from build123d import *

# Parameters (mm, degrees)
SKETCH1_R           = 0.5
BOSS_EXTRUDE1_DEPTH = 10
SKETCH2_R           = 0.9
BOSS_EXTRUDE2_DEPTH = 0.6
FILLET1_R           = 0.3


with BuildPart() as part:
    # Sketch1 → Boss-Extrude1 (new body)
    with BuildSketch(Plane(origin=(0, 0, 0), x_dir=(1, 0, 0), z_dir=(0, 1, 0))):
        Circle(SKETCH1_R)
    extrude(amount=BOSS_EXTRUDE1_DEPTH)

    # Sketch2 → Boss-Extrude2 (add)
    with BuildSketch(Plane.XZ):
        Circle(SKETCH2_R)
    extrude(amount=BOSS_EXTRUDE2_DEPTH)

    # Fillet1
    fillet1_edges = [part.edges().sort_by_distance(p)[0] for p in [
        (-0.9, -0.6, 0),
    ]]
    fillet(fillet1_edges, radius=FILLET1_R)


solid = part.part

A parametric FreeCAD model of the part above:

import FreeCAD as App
import Part
import Sketcher
from FreeCAD import Vector


def edges_at(feature, points):
    """Names of the edges that pass closest to the given points."""
    edges = feature.Shape.Edges
    near = lambda p: min(range(len(edges)), key=lambda i: edges[i].distToShape(Part.Vertex(*p))[0])
    return sorted({f"Edge{near(p) + 1}" for p in points})

doc = App.newDocument("Part")
params = doc.addObject("Spreadsheet::Sheet", "Params")
for row, (alias, value) in enumerate([
    ("sketch1_diameter", "1 mm"),
    ("pad1_length", "10 mm"),
    ("sketch2_diameter", "1.8 mm"),
    ("pad2_length", "0.6 mm"),
    ("fillet_radius", "0.3 mm"),
], start=1):
    params.set(f"A{row}", alias)
    params.set(f"B{row}", "=" + value)
    params.setAlias(f"B{row}", alias)

body = doc.addObject("PartDesign::Body", "Body")

sketch1 = doc.addObject("Sketcher::SketchObject", "Sketch")
body.addObject(sketch1)
sketch1.AttachmentSupport = (doc.XZ_Plane, [""])
sketch1.MapMode = "FlatFace"
sketch1.addGeometry(Part.Circle(Vector(0, 0, 0), Vector(0, 0, 1), 0.5), False)
sketch1.addConstraint([
    Sketcher.Constraint("Coincident", 0, 3, -1, 1),
    Sketcher.Constraint("Diameter", 0, 1.0),
])
sketch1.setExpression("Constraints[1]", "Params.sketch1_diameter")
pad1 = doc.addObject("PartDesign::Pad", "Pad")
body.addObject(pad1)
pad1.Profile = sketch1
pad1.setExpression("Length", "Params.pad1_length")
pad1.Reversed = True

sketch2 = doc.addObject("Sketcher::SketchObject", "Sketch001")
body.addObject(sketch2)
sketch2.AttachmentSupport = (doc.XZ_Plane, [""])
sketch2.MapMode = "FlatFace"
sketch2.addGeometry(Part.Circle(Vector(0, 0, 0), Vector(0, 0, 1), 0.9), False)
sketch2.addConstraint([
    Sketcher.Constraint("Coincident", 0, 3, -1, 1),
    Sketcher.Constraint("Diameter", 0, 1.8),
])
sketch2.setExpression("Constraints[1]", "Params.sketch2_diameter")
pad2 = doc.addObject("PartDesign::Pad", "Pad001")
body.addObject(pad2)
pad2.Profile = sketch2
pad2.setExpression("Length", "Params.pad2_length")
doc.recompute()

fillet = doc.addObject("PartDesign::Fillet", "Fillet")
body.addObject(fillet)
fillet.Base = (pad2, edges_at(pad2, [(-0.9, -0.6, 0)]))
fillet.setExpression("Radius", "Params.fillet_radius")

doc.recompute()
